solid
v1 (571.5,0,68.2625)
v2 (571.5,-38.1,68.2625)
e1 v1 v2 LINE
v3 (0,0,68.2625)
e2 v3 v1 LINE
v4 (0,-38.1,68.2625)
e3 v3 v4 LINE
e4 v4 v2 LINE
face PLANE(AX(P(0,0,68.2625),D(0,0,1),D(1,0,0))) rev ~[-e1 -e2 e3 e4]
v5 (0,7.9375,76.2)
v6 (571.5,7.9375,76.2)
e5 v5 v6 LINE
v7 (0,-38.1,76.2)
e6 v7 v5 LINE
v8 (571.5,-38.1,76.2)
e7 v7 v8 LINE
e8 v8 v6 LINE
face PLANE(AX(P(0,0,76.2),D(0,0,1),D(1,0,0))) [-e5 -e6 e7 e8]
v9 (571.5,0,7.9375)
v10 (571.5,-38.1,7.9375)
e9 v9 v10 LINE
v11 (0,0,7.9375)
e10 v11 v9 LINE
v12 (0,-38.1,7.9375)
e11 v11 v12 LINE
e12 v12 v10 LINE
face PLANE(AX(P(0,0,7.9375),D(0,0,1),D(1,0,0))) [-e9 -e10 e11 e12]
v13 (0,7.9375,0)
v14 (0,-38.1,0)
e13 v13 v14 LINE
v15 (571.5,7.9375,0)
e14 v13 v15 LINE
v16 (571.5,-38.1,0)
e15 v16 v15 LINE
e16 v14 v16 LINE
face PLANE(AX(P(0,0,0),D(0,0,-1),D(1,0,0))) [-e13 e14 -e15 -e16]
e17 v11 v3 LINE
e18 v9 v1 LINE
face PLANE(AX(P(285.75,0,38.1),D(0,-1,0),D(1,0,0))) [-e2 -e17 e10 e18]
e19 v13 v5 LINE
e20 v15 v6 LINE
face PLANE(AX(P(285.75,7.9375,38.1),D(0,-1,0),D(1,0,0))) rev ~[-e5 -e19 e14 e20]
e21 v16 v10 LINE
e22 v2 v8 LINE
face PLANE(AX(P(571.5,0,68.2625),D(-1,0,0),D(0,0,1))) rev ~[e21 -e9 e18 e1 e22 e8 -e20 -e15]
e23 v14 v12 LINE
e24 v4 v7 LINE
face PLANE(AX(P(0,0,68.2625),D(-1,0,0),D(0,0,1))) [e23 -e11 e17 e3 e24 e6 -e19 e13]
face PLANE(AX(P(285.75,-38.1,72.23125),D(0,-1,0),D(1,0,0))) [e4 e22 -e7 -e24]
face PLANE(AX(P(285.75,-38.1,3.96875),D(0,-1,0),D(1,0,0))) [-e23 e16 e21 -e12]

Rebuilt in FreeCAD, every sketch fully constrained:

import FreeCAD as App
import Part
import Sketcher
Q = App.Units.Quantity

doc = App.newDocument("Part")
body = doc.addObject("PartDesign::Body", "Body")

sketch1 = body.newObject("Sketcher::SketchObject", "Sketch")
sketch1.AttachmentSupport = (doc.getObject("XZ_Plane"), [""])
sketch1.MapMode = "FlatFace"
sketch1.addGeometry([
    Part.LineSegment(App.Vector(0, 76, 0), App.Vector(0, 0, 0)),
    Part.LineSegment(App.Vector(0, 0, 0), App.Vector(572, 0, 0)),
    Part.LineSegment(App.Vector(572, 0, 0), App.Vector(572, 76, 0)),
    Part.LineSegment(App.Vector(572, 76, 0), App.Vector(0, 76, 0)),
], False)
sketch1.addConstraint([
    Sketcher.Constraint("Coincident", 0, 2, 1, 1),
    Sketcher.Constraint("Coincident", 1, 2, 2, 1),
    Sketcher.Constraint("Coincident", 2, 2, 3, 1),
    Sketcher.Constraint("Coincident", 3, 2, 0, 1),
    Sketcher.Constraint("Vertical", 0),
    Sketcher.Constraint("Horizontal", 1),
    Sketcher.Constraint("Vertical", 2),
    Sketcher.Constraint("Horizontal", 3),
    Sketcher.Constraint("Coincident", 0, 2, -1, 1),
    Sketcher.Constraint("DistanceY", 0, 2, 0, 1, Q("3 in")),
    Sketcher.Constraint("DistanceX", 1, 1, 1, 2, Q("22.5 in")),
])
pad1 = body.newObject("PartDesign::Pad", "Pad")
pad1.Profile = sketch1
pad1.Length = Q("0.3125 in")
pad1.Reversed = True

sketch2 = body.newObject("Sketcher::SketchObject", "Sketch001")
sketch2.AttachmentSupport = (doc.getObject("XZ_Plane"), [""])
sketch2.MapMode = "FlatFace"
sketch2.addGeometry([
    Part.LineSegment(App.Vector(0, 76, 0), App.Vector(0, 68, 0)),
    Part.LineSegment(App.Vector(0, 68, 0), App.Vector(572, 68, 0)),
    Part.LineSegment(App.Vector(572, 68, 0), App.Vector(572, 76, 0)),
    Part.LineSegment(App.Vector(572, 76, 0), App.Vector(0, 76, 0)),
    Part.LineSegment(App.Vector(0, 8, 0), App.Vector(0, 0, 0)),
    Part.LineSegment(App.Vector(0, 0, 0), App.Vector(572, 0, 0)),
    Part.LineSegment(App.Vector(572, 0, 0), App.Vector(572, 8, 0)),
    Part.LineSegment(App.Vector(572, 8, 0), App.Vector(0, 8, 0)),
], False)
sketch2.addConstraint([
    Sketcher.Constraint("Coincident", 0, 2, 1, 1),
    Sketcher.Constraint("Coincident", 1, 2, 2, 1),
    Sketcher.Constraint("Coincident", 2, 2, 3, 1),
    Sketcher.Constraint("Coincident", 3, 2, 0, 1),
    Sketcher.Constraint("Coincident", 4, 2, 5, 1),
    Sketcher.Constraint("Coincident", 5, 2, 6, 1),
    Sketcher.Constraint("Coincident", 6, 2, 7, 1),
    Sketcher.Constraint("Coincident", 7, 2, 4, 1),
    Sketcher.Constraint("Vertical", 0),
    Sketcher.Constraint("Horizontal", 1),
    Sketcher.Constraint("Vertical", 2),
    Sketcher.Constraint("Horizontal", 3),
    Sketcher.Constraint("Vertical", 4),
    Sketcher.Constraint("Horizontal", 5),
    Sketcher.Constraint("Vertical", 6),
    Sketcher.Constraint("Horizontal", 7),
    Sketcher.Constraint("Coincident", 4, 2, -1, 1),
    Sketcher.Constraint("PointOnObject", 0, 2, -2),
    Sketcher.Constraint("Vertical", 2, 2, 5, 2),
    Sketcher.Constraint("Equal", 2, 4),
    Sketcher.Constraint("DistanceX", 1, 1, 1, 2, Q("22.5 in")),
    Sketcher.Constraint("DistanceY", -1, 1, 2, 2, Q("3 in")),
    Sketcher.Constraint("DistanceY", 0, 2, 0, 1, Q("0.3125 in")),
])
pad2 = body.newObject("PartDesign::Pad", "Pad001")
pad2.Profile = sketch2
pad2.Length = Q("1.5 in")

doc.recompute()
